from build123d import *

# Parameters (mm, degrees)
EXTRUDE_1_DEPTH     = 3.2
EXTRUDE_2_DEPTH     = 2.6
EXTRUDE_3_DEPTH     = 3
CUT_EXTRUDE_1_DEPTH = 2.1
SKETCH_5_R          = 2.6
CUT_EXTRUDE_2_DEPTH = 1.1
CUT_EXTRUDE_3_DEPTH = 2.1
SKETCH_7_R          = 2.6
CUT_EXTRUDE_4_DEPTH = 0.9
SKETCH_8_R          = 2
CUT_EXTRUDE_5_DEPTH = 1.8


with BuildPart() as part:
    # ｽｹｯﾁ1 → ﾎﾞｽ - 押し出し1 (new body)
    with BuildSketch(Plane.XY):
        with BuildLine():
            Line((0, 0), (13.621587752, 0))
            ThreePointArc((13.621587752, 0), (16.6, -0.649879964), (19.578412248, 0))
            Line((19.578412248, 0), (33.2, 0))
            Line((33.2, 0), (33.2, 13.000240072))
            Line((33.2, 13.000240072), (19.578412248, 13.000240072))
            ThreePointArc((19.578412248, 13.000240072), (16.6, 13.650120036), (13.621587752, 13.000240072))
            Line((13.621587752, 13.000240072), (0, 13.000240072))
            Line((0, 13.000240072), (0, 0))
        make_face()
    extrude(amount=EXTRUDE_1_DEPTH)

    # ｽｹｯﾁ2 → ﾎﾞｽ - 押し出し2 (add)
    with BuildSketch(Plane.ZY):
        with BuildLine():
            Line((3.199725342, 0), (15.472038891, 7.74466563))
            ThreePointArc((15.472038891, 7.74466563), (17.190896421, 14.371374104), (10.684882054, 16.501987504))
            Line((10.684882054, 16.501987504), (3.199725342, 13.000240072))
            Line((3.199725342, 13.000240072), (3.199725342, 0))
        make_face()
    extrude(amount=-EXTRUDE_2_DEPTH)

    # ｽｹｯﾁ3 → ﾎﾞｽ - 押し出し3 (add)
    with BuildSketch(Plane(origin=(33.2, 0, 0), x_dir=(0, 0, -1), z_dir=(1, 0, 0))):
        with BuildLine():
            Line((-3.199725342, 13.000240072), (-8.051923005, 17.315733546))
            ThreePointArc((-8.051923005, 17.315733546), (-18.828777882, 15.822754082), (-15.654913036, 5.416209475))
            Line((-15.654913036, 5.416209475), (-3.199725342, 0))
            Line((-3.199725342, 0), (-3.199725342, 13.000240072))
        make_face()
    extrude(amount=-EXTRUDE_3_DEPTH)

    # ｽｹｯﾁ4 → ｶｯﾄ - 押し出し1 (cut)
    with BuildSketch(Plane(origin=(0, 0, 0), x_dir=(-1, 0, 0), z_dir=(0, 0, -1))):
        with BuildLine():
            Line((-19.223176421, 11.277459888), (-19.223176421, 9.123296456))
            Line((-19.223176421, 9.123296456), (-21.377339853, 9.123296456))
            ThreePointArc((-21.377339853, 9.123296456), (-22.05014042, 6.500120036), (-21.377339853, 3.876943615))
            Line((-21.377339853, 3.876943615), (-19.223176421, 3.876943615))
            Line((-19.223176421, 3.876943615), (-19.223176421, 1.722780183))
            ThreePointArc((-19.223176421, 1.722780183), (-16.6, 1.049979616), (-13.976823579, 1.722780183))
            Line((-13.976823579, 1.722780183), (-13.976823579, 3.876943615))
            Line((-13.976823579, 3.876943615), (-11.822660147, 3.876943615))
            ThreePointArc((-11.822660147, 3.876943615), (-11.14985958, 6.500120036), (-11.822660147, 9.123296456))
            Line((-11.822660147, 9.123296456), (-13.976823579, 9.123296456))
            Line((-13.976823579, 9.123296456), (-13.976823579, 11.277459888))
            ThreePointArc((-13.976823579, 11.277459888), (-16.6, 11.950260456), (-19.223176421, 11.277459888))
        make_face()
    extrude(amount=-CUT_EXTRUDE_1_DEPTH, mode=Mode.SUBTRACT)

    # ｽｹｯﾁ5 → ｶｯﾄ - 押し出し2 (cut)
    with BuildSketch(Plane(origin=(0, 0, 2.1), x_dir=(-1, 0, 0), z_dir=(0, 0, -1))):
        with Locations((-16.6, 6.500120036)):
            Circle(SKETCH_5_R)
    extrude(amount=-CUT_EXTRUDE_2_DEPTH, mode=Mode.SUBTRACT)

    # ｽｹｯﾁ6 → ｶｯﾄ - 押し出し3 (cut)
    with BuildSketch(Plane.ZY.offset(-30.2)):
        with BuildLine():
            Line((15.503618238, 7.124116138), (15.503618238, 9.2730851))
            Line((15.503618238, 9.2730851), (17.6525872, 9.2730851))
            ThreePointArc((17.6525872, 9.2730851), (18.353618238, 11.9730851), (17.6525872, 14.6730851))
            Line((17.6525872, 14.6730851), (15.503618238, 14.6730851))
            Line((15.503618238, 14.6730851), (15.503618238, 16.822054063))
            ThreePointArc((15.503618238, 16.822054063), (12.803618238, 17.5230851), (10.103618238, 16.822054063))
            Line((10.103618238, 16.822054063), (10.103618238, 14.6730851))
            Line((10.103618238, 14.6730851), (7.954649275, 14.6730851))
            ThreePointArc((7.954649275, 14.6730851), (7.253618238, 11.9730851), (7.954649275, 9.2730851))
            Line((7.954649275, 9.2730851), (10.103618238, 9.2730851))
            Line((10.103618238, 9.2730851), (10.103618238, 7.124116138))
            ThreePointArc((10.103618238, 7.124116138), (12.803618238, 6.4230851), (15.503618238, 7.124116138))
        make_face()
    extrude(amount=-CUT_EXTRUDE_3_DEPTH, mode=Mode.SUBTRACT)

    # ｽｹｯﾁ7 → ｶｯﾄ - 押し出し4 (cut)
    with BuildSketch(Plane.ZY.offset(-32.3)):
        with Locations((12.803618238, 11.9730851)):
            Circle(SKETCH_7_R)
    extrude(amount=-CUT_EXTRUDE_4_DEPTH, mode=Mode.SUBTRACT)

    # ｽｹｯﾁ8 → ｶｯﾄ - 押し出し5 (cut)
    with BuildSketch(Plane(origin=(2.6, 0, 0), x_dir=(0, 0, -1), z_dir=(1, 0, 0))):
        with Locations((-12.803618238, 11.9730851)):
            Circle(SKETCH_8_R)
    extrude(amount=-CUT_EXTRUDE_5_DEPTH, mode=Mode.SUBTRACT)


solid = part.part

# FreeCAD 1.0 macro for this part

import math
import FreeCAD as App
import Part
import Sketcher
from FreeCAD import Vector
Q = App.Units.Quantity

doc = App.newDocument("Part")
params = doc.addObject("Spreadsheet::Sheet", "Params")
for row, (alias, value) in enumerate([
    ("sketch1_radius", "7.15 mm"),
    ("pad1_length", "3.2 mm"),
    ("sketch2_radius", "5 mm"),
    ("pad2_length", "2.6 mm"),
    ("sketch3_radius", "7.15 mm"),
    ("pad3_length", "3 mm"),
    ("pocket1_length", "2.1 mm"),
    ("sketch5_diameter", "5.2 mm"),
    ("pocket2_length", "1.1 mm"),
    ("sketch6_radius", "5.55 mm"),
    ("pocket3_length", "2.1 mm"),
    ("sketch7_diameter", "5.2 mm"),
    ("pocket4_length", "0.9 mm"),
    ("sketch8_diameter", "4 mm"),
    ("pocket5_length", "1.8 mm"),
], start=1):
    params.set(f"A{row}", alias)
    params.set(f"B{row}", "=" + value)
    params.setAlias(f"B{row}", alias)

body = doc.addObject("PartDesign::Body", "Body")

# Sketch on XY plane
sketch1 = body.newObject("Sketcher::SketchObject", "Sketch")
sketch1.AttachmentSupport = (doc.getObject("XY_Plane"), [""])
sketch1.MapMode = "FlatFace"
sketch1.addGeometry([
    Part.LineSegment(Vector(0, 0, 0), Vector(13.621588, 0, 0)),  # 0
    Part.ArcOfCircle(Part.Circle(Vector(16.6, 6.50012, 0), Vector(0, 0, 1), 7.15), math.radians(-114.617668), math.radians(-65.382332)),  # 1
    Part.LineSegment(Vector(19.578412, 0, 0), Vector(33.2, 0, 0)),  # 2
    Part.LineSegment(Vector(33.2, 0, 0), Vector(33.2, 13.00024, 0)),  # 3
    Part.LineSegment(Vector(33.2, 13.00024, 0), Vector(19.578412, 13.00024, 0)),  # 4
    Part.ArcOfCircle(Part.Circle(Vector(16.6, 6.50012, 0), Vector(0, 0, 1), 7.15), math.radians(65.382332), math.radians(114.617668)),  # 5
    Part.LineSegment(Vector(13.621588, 13.00024, 0), Vector(0, 13.00024, 0)),  # 6
    Part.LineSegment(Vector(0, 13.00024, 0), Vector(0, 0, 0)),  # 7
], False)
sketch1.addConstraint([
    Sketcher.Constraint("Coincident", 0, 2, 1, 1),
    Sketcher.Constraint("Coincident", 1, 2, 2, 1),
    Sketcher.Constraint("Coincident", 2, 2, 3, 1),
    Sketcher.Constraint("Coincident", 3, 2, 4, 1),
    Sketcher.Constraint("Coincident", 4, 2, 5, 1),
    Sketcher.Constraint("Coincident", 5, 2, 6, 1),
    Sketcher.Constraint("Coincident", 6, 2, 7, 1),
    Sketcher.Constraint("Coincident", 7, 2, 0, 1),
    Sketcher.Constraint("Horizontal", 0),
    Sketcher.Constraint("Horizontal", 2),
    Sketcher.Constraint("Vertical", 3),
    Sketcher.Constraint("Horizontal", 4),
    Sketcher.Constraint("Horizontal", 6),
    Sketcher.Constraint("Vertical", 7),
    Sketcher.Constraint("Coincident", 7, 2, -1, 1),
    Sketcher.Constraint("Coincident", 5, 3, 1, 3),
    Sketcher.Constraint("Equal", 1, 5),
    Sketcher.Constraint("PointOnObject", 1, 2, -1),
    Sketcher.Constraint("Horizontal", 4, 2, 5, 2),
    Sketcher.Constraint("Vertical", 1, 2, 4, 2),
    Sketcher.Constraint("Equal", 0, 2),
    Sketcher.Constraint("Radius", 1, Q("7.15 mm")),
    Sketcher.Constraint("DistanceX", -1, 1, 1, 3, Q("16.6 mm")),
    Sketcher.Constraint("DistanceY", 3, 1, 3, 2, Q("13.00024 mm")),
])
sketch1.setExpression("Constraints[21]", "Params.sketch1_radius")
pad1 = body.newObject("PartDesign::Pad", "Pad")
pad1.Profile = sketch1
pad1.setExpression("Length", "Params.pad1_length")

# Sketch on YZ plane
sketch2 = body.newObject("Sketcher::SketchObject", "Sketch001")
sketch2.AttachmentSupport = (doc.getObject("YZ_Plane"), [""])
sketch2.MapMode = "FlatFace"
sketch2.addGeometry([
    Part.LineSegment(Vector(0, 3.199725, 0), Vector(7.744666, 15.472039, 0)),
    Part.ArcOfCircle(Part.Circle(Vector(11.973085, 12.803618, 0), Vector(0, 0, 1), 5), math.radians(-25.071393), math.radians(147.745284)),
    Part.LineSegment(Vector(16.501988, 10.684882, 0), Vector(13.00024, 3.199725, 0)),
    Part.LineSegment(Vector(13.00024, 3.199725, 0), Vector(0, 3.199725, 0)),
], False)
sketch2.addConstraint([
    Sketcher.Constraint("Tangent", 0, 2, 1, 2),
    Sketcher.Constraint("Tangent", 1, 1, 2, 1),
    Sketcher.Constraint("Coincident", 2, 2, 3, 1),
    Sketcher.Constraint("Coincident", 3, 2, 0, 1),
    Sketcher.Constraint("Horizontal", 3),
    Sketcher.Constraint("PointOnObject", 3, 2, -2),
    Sketcher.Constraint("Radius", 1, Q("5 mm")),
    Sketcher.Constraint("DistanceX", 3, 2, 3, 1, Q("13.00024 mm")),
    Sketcher.Constraint("DistanceY", -1, 1, 1, 3, Q("12.803618 mm")),
    Sketcher.Constraint("DistanceY", -1, 1, 0, 2, Q("15.472039 mm")),
    Sketcher.Constraint("DistanceX", 0, 2, 1, 1, Q("8.757322 mm")),
])
sketch2.setExpression("Constraints[6]", "Params.sketch2_radius")
pad2 = body.newObject("PartDesign::Pad", "Pad001")
pad2.Profile = sketch2
pad2.setExpression("Length", "Params.pad2_length")

# Sketch on YZ plane
sketch3 = body.newObject("Sketcher::SketchObject", "Sketch002")
sketch3.AttachmentSupport = (doc.getObject("YZ_Plane"), [""])
sketch3.MapMode = "FlatFace"
sketch3.AttachmentOffset = App.Placement(Vector(0, 0, 33.2), App.Rotation())
sketch3.addGeometry([
    Part.LineSegment(Vector(13.00024, 3.199725, 0), Vector(17.315734, 8.051923, 0)),
    Part.ArcOfCircle(Part.Circle(Vector(11.973085, 12.803618, 0), Vector(0, 0, 1), 7.15), math.radians(-41.649557), math.radians(156.497912)),
    Part.LineSegment(Vector(5.416209, 15.654913, 0), Vector(0, 3.199725, 0)),
    Part.LineSegment(Vector(0, 3.199725, 0), Vector(13.00024, 3.199725, 0)),
], False)
sketch3.addConstraint([
    Sketcher.Constraint("Tangent", 0, 2, 1, 1),
    Sketcher.Constraint("Tangent", 1, 2, 2, 1),
    Sketcher.Constraint("Coincident", 2, 2, 3, 1),
    Sketcher.Constraint("Coincident", 3, 2, 0, 1),
    Sketcher.Constraint("Horizontal", 3),
    Sketcher.Constraint("PointOnObject", 2, 2, -2),
    Sketcher.Constraint("Radius", 1, Q("7.15 mm")),
    Sketcher.Constraint("DistanceX", 3, 1, 3, 2, Q("13.00024 mm")),
    Sketcher.Constraint("DistanceY", -1, 1, 1, 3, Q("12.803618 mm")),
    Sketcher.Constraint("DistanceX", -1, 1, 1, 2, Q("5.416209 mm")),
    Sketcher.Constraint("DistanceX", 1, 3, 0, 2, Q("5.342648 mm")),
])
sketch3.setExpression("Constraints[6]", "Params.sketch3_radius")
pad3 = body.newObject("PartDesign::Pad", "Pad002")
pad3.Profile = sketch3
pad3.setExpression("Length", "Params.pad3_length")
pad3.Reversed = True

# Sketch on XY plane
sketch4 = body.newObject("Sketcher::SketchObject", "Sketch003")
sketch4.AttachmentSupport = (doc.getObject("XY_Plane"), [""])
sketch4.MapMode = "FlatFace"
sketch4.addGeometry([
    Part.LineSegment(Vector(19.223176, 11.27746, 0), Vector(19.223176, 9.123296, 0)),  # 0
    Part.LineSegment(Vector(19.223176, 9.123296, 0), Vector(21.37734, 9.123296, 0)),  # 1
    Part.ArcOfCircle(Part.Circle(Vector(16.6, 6.50012, 0), Vector(0, 0, 1), 5.45014), math.radians(-28.770627), math.radians(28.770627)),  # 2
    Part.LineSegment(Vector(21.37734, 3.876944, 0), Vector(19.223176, 3.876944, 0)),  # 3
    Part.LineSegment(Vector(19.223176, 3.876944, 0), Vector(19.223176, 1.72278, 0)),  # 4
    Part.ArcOfCircle(Part.Circle(Vector(16.6, 6.50012, 0), Vector(0, 0, 1), 5.45014), math.radians(-118.770627), math.radians(-61.229373)),  # 5
    Part.LineSegment(Vector(13.976824, 1.72278, 0), Vector(13.976824, 3.876944, 0)),  # 6
    Part.LineSegment(Vector(13.976824, 3.876944, 0), Vector(11.82266, 3.876944, 0)),  # 7
    Part.ArcOfCircle(Part.Circle(Vector(16.6, 6.50012, 0), Vector(0, 0, 1), 5.45014), math.radians(151.229373), math.radians(208.770627)),  # 8
    Part.LineSegment(Vector(11.82266, 9.123296, 0), Vector(13.976824, 9.123296, 0)),  # 9
    Part.LineSegment(Vector(13.976824, 9.123296, 0), Vector(13.976824, 11.27746, 0)),  # 10
    Part.ArcOfCircle(Part.Circle(Vector(16.6, 6.50012, 0), Vector(0, 0, 1), 5.45014), math.radians(61.229373), math.radians(118.770627)),  # 11
], False)
sketch4.addConstraint([
    Sketcher.Constraint("Coincident", 0, 2, 1, 1),
    Sketcher.Constraint("Coincident", 1, 2, 2, 2),
    Sketcher.Constraint("Coincident", 2, 1, 3, 1),
    Sketcher.Constraint("Coincident", 3, 2, 4, 1),
    Sketcher.Constraint("Coincident", 4, 2, 5, 2),
    Sketcher.Constraint("Coincident", 5, 1, 6, 1),
    Sketcher.Constraint("Coincident", 6, 2, 7, 1),
    Sketcher.Constraint("Coincident", 7, 2, 8, 2),
    Sketcher.Constraint("Coincident", 8, 1, 9, 1),
    Sketcher.Constraint("Coincident", 9, 2, 10, 1),
    Sketcher.Constraint("Coincident", 10, 2, 11, 2),
    Sketcher.Constraint("Coincident", 11, 1, 0, 1),
    Sketcher.Constraint("Vertical", 0),
    Sketcher.Constraint("Horizontal", 1),
    Sketcher.Constraint("Horizontal", 3),
    Sketcher.Constraint("Vertical", 4),
    Sketcher.Constraint("Vertical", 6),
    Sketcher.Constraint("Horizontal", 7),
    Sketcher.Constraint("Horizontal", 9),
    Sketcher.Constraint("Vertical", 10),
    Sketcher.Constraint("Coincident", 5, 3, 2, 3),
    Sketcher.Constraint("Coincident", 8, 3, 2, 3),
    Sketcher.Constraint("Coincident", 11, 3, 2, 3),
    Sketcher.Constraint("Equal", 2, 5),
    Sketcher.Constraint("Equal", 5, 8),
    Sketcher.Constraint("Equal", 8, 11),
    Sketcher.Constraint("Horizontal", 4, 2, 5, 1),
    Sketcher.Constraint("Horizontal", 3, 2, 6, 2),
    Sketcher.Constraint("Horizontal", 1, 2, 8, 1),
    Sketcher.Constraint("Horizontal", 10, 2, 11, 1),
    Sketcher.Constraint("Vertical", 1, 2, 2, 1),
    Sketcher.Constraint("Vertical", 0, 2, 3, 2),
    Sketcher.Constraint("Equal", 9, 0),
    Sketcher.Constraint("DistanceX", -1, 1, 2, 3, Q("16.6 mm")),
    Sketcher.Constraint("Radius", 2, Q("5.45014 mm")),
    Sketcher.Constraint("DistanceX", 1, 1, 1, 2, Q("2.154163 mm")),
    Sketcher.Constraint("DistanceY", -1, 1, 2, 3, Q("6.50012 mm")),
])
pocket1 = body.newObject("PartDesign::Pocket", "Pocket")
pocket1.Profile = sketch4
pocket1.setExpression("Length", "Params.pocket1_length")
pocket1.Reversed = True

# Sketch on XY plane
sketch5 = body.newObject("Sketcher::SketchObject", "Sketch004")
sketch5.AttachmentSupport = (doc.getObject("XY_Plane"), [""])
sketch5.MapMode = "FlatFace"
sketch5.AttachmentOffset = App.Placement(Vector(0, 0, 2.1), App.Rotation())
sketch5.addGeometry(Part.Circle(Vector(16.6, 6.50012, 0), Vector(0, 0, 1), 2.6), False)
sketch5.addConstraint([
    Sketcher.Constraint("Diameter", 0, Q("5.2 mm")),
    Sketcher.Constraint("DistanceX", -1, 1, 0, 3, Q("16.6 mm")),
    Sketcher.Constraint("DistanceY", -1, 1, 0, 3, Q("6.50012 mm")),
])
sketch5.setExpression("Constraints[0]", "Params.sketch5_diameter")
pocket2 = body.newObject("PartDesign::Pocket", "Pocket001")
pocket2.Profile = sketch5
pocket2.setExpression("Length", "Params.pocket2_length")
pocket2.Reversed = True

# Sketch on YZ plane
sketch6 = body.newObject("Sketcher::SketchObject", "Sketch005")
sketch6.AttachmentSupport = (doc.getObject("YZ_Plane"), [""])
sketch6.MapMode = "FlatFace"
sketch6.AttachmentOffset = App.Placement(Vector(0, 0, 30.2), App.Rotation())
sketch6.addGeometry([
    Part.LineSegment(Vector(7.124116, 15.503618, 0), Vector(9.273085, 15.503618, 0)),  # 0
    Part.LineSegment(Vector(9.273085, 15.503618, 0), Vector(9.273085, 17.652587, 0)),  # 1
    Part.ArcOfCircle(Part.Circle(Vector(11.973085, 12.803618, 0), Vector(0, 0, 1), 5.55), math.radians(60.890091), math.radians(119.109909)),  # 2
    Part.LineSegment(Vector(14.673085, 17.652587, 0), Vector(14.673085, 15.503618, 0)),  # 3
    Part.LineSegment(Vector(14.673085, 15.503618, 0), Vector(16.822054, 15.503618, 0)),  # 4
    Part.ArcOfCircle(Part.Circle(Vector(11.973085, 12.803618, 0), Vector(0, 0, 1), 5.55), math.radians(-29.109909), math.radians(29.109909)),  # 5
    Part.LineSegment(Vector(16.822054, 10.103618, 0), Vector(14.673085, 10.103618, 0)),  # 6
    Part.LineSegment(Vector(14.673085, 10.103618, 0), Vector(14.673085, 7.954649, 0)),  # 7
    Part.ArcOfCircle(Part.Circle(Vector(11.973085, 12.803618, 0), Vector(0, 0, 1), 5.55), math.radians(-119.109909), math.radians(-60.890091)),  # 8
    Part.LineSegment(Vector(9.273085, 7.954649, 0), Vector(9.273085, 10.103618, 0)),  # 9
    Part.LineSegment(Vector(9.273085, 10.103618, 0), Vector(7.124116, 10.103618, 0)),  # 10
    Part.ArcOfCircle(Part.Circle(Vector(11.973085, 12.803618, 0), Vector(0, 0, 1), 5.55), math.radians(150.890091), math.radians(209.109909)),  # 11
], False)
sketch6.addConstraint([
    Sketcher.Constraint("Coincident", 0, 2, 1, 1),
    Sketcher.Constraint("Coincident", 1, 2, 2, 2),
    Sketcher.Constraint("Coincident", 2, 1, 3, 1),
    Sketcher.Constraint("Coincident", 3, 2, 4, 1),
    Sketcher.Constraint("Coincident", 4, 2, 5, 2),
    Sketcher.Constraint("Coincident", 5, 1, 6, 1),
    Sketcher.Constraint("Coincident", 6, 2, 7, 1),
    Sketcher.Constraint("Coincident", 7, 2, 8, 2),
    Sketcher.Constraint("Coincident", 8, 1, 9, 1),
    Sketcher.Constraint("Coincident", 9, 2, 10, 1),
    Sketcher.Constraint("Coincident", 10, 2, 11, 2),
    Sketcher.Constraint("Coincident", 11, 1, 0, 1),
    Sketcher.Constraint("Horizontal", 0),
    Sketcher.Constraint("Vertical", 1),
    Sketcher.Constraint("Vertical", 3),
    Sketcher.Constraint("Horizontal", 4),
    Sketcher.Constraint("Horizontal", 6),
    Sketcher.Constraint("Vertical", 7),
    Sketcher.Constraint("Vertical", 9),
    Sketcher.Constraint("Horizontal", 10),
    Sketcher.Constraint("Coincident", 5, 3, 2, 3),
    Sketcher.Constraint("Coincident", 8, 3, 2, 3),
    Sketcher.Constraint("Coincident", 11, 3, 2, 3),
    Sketcher.Constraint("Equal", 2, 5),
    Sketcher.Constraint("Equal", 5, 8),
    Sketcher.Constraint("Equal", 8, 11),
    Sketcher.Constraint("Horizontal", 1, 2, 2, 1),
    Sketcher.Constraint("Horizontal", 0, 2, 3, 2),
    Sketcher.Constraint("Horizontal", 7, 2, 8, 1),
    Sketcher.Constraint("Horizontal", 6, 2, 9, 2),
    Sketcher.Constraint("Vertical", 4, 2, 5, 1),
    Sketcher.Constraint("Vertical", 3, 2, 6, 2),
    Sketcher.Constraint("Equal", 10, 1),
    Sketcher.Constraint("Radius", 2, Q("5.55 mm")),
    Sketcher.Constraint("DistanceX", 0, 2, 2, 3, Q("2.7 mm")),
    Sketcher.Constraint("DistanceY", -1, 1, 2, 3, Q("12.803618 mm")),
    Sketcher.Constraint("DistanceX", -1, 1, 2, 3, Q("11.973085 mm")),
])
sketch6.setExpression("Constraints[33]", "Params.sketch6_radius")
pocket3 = body.newObject("PartDesign::Pocket", "Pocket002")
pocket3.Profile = sketch6
pocket3.setExpression("Length", "Params.pocket3_length")
pocket3.Reversed = True

# Sketch on YZ plane
sketch7 = body.newObject("Sketcher::SketchObject", "Sketch006")
sketch7.AttachmentSupport = (doc.getObject("YZ_Plane"), [""])
sketch7.MapMode = "FlatFace"
sketch7.AttachmentOffset = App.Placement(Vector(0, 0, 32.3), App.Rotation())
sketch7.addGeometry(Part.Circle(Vector(11.973085, 12.803618, 0), Vector(0, 0, 1), 2.6), False)
sketch7.addConstraint([
    Sketcher.Constraint("Diameter", 0, Q("5.2 mm")),
    Sketcher.Constraint("DistanceY", -1, 1, 0, 3, Q("12.803618 mm")),
    Sketcher.Constraint("DistanceX", -1, 1, 0, 3, Q("11.973085 mm")),
])
sketch7.setExpression("Constraints[0]", "Params.sketch7_diameter")
pocket4 = body.newObject("PartDesign::Pocket", "Pocket003")
pocket4.Profile = sketch7
pocket4.setExpression("Length", "Params.pocket4_length")
pocket4.Reversed = True

# Sketch on YZ plane
sketch8 = body.newObject("Sketcher::SketchObject", "Sketch007")
sketch8.AttachmentSupport = (doc.getObject("YZ_Plane"), [""])
sketch8.MapMode = "FlatFace"
sketch8.AttachmentOffset = App.Placement(Vector(0, 0, 2.6), App.Rotation())
sketch8.addGeometry(Part.Circle(Vector(11.973085, 12.803618, 0), Vector(0, 0, 1), 2), False)
sketch8.addConstraint([
    Sketcher.Constraint("Diameter", 0, Q("4 mm")),
    Sketcher.Constraint("DistanceY", -1, 1, 0, 3, Q("12.803618 mm")),
    Sketcher.Constraint("DistanceX", -1, 1, 0, 3, Q("11.973085 mm")),
])
sketch8.setExpression("Constraints[0]", "Params.sketch8_diameter")
pocket5 = body.newObject("PartDesign::Pocket", "Pocket004")
pocket5.Profile = sketch8
pocket5.setExpression("Length", "Params.pocket5_length")

doc.recompute()
